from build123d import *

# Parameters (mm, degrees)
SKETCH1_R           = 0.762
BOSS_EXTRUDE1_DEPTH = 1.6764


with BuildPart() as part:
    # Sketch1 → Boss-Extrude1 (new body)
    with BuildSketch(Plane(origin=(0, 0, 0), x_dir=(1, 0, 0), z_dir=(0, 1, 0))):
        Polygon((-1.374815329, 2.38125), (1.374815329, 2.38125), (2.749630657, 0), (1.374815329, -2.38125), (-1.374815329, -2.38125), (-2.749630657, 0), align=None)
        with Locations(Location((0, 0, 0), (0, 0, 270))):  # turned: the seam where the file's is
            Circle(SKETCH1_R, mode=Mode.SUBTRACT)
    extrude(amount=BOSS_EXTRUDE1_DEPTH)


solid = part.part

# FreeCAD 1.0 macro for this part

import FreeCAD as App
import Part
import Sketcher
from FreeCAD import Vector
Q = App.Units.Quantity


def add_polygon(sketch, points):
    """Adds a closed chain of lines whose ends are joined by coincident constraints."""
    first, n = sketch.GeometryCount, len(points)
    for a, b in zip(points, points[1:] + points[:1]):
        sketch.addGeometry(Part.LineSegment(App.Vector(*a, 0), App.Vector(*b, 0)), False)
    for i in range(n):
        sketch.addConstraint(Sketcher.Constraint("Coincident", first + i, 2, first + (i + 1) % n, 1))

doc = App.newDocument("Part")
params = doc.addObject("Spreadsheet::Sheet", "Params")
for row, (alias, value) in enumerate([
    ("sketch1_diameter", "0.06 in"),
    ("pad1_length", "0.066 in"),
], start=1):
    params.set(f"A{row}", alias)
    params.set(f"B{row}", "=" + value)
    params.setAlias(f"B{row}", alias)

body = doc.addObject("PartDesign::Body", "Body")

sketch1 = body.newObject("Sketcher::SketchObject", "Sketch")
sketch1.AttachmentSupport = (doc.getObject("XZ_Plane"), [""])
sketch1.MapMode = "FlatFace"
add_polygon(sketch1, [(1.4, -2.4), (-1.4, -2.4), (-2.7, 0), (-1.4, 2.4), (1.4, 2.4), (2.7, 0)])
sketch1.addGeometry(Part.Circle(Vector(0, 0, 0), Vector(0, 0, 1), 0.8), False)
sketch1.addConstraint([
    Sketcher.Constraint("Horizontal", 0),
    Sketcher.Constraint("Horizontal", 3),
    Sketcher.Constraint("Coincident", 6, 3, -1, 1),
    Sketcher.Constraint("Symmetric", 0, 2, 3, 2, -1, 1),
    Sketcher.Constraint("Symmetric", 1, 2, 4, 2, -1, 1),
    Sketcher.Constraint("PointOnObject", 1, 2, -1),
    Sketcher.Constraint("Parallel", 2, 5),
    Sketcher.Constraint("Vertical", 0, 2, 2, 2),
    Sketcher.Constraint("Diameter", 6, Q("0.06 in")),
    Sketcher.Constraint("Angle", 1, Q("120 deg")),
    Sketcher.Constraint("DistanceY", 0, 2, -1, 1, Q("0.09375 in")),
    Sketcher.Constraint("DistanceX", 0, 2, 0, 1, 2.749631),
])
sketch1.setExpression("Constraints[14]", "Params.sketch1_diameter")
pad1 = body.newObject("PartDesign::Pad", "Pad")
pad1.Profile = sketch1
pad1.setExpression("Length", "Params.pad1_length")
pad1.Reversed = True

doc.recompute()
